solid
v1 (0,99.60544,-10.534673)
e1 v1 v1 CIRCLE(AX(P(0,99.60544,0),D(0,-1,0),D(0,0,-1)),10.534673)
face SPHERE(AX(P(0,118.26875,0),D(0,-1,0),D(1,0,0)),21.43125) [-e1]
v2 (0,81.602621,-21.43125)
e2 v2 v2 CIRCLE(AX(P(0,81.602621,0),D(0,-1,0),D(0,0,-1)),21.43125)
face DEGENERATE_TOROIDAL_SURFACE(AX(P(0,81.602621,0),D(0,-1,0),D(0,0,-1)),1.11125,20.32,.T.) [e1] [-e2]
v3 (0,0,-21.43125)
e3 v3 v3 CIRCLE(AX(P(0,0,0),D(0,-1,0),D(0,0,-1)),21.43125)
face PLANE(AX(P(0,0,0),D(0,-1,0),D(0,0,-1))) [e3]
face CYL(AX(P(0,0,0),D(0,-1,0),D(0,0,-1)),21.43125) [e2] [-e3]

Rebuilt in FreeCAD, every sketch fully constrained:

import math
import FreeCAD as App
import Part
import Sketcher
from FreeCAD import Vector
Q = App.Units.Quantity

doc = App.newDocument("Part")
params = doc.addObject("Spreadsheet::Sheet", "Params")
for row, (alias, value) in enumerate([
    ("sketch1_radius", "0.8 in"),
    ("sketch1_height", "5.5 in"),
    ("sketch1_radius2", "0.84375 in"),
    ("sketch1_width", "0.84375 in"),
    ("revolution_angle", "360 deg"),
], start=1):
    params.set(f"A{row}", alias)
    params.set(f"B{row}", "=" + value)
    params.setAlias(f"B{row}", alias)

body = doc.addObject("PartDesign::Body", "Body")

# Sketch on XY plane
sketch1 = doc.addObject("Sketcher::SketchObject", "Sketch")
body.addObject(sketch1)
sketch1.AttachmentSupport = (doc.XY_Plane, [""])
sketch1.MapMode = "FlatFace"
sketch1.addGeometry(Part.LineSegment(Vector(0, 0, 0), Vector(21.43125, 0, 0)), False)
sketch1.addGeometry(Part.LineSegment(Vector(21.43125, 0, 0), Vector(21.43125, 81.602621, 0)), False)
sketch1.addGeometry(Part.ArcOfCircle(Part.Circle(Vector(1.11125, 81.602621, 0), Vector(0, 0, 1), 20.32), math.radians(0), math.radians(62.370573)), False)
sketch1.addGeometry(Part.ArcOfCircle(Part.Circle(Vector(0, 118.26875, 0), Vector(0, 0, 1), 21.43125), math.radians(-60.557055), math.radians(90)), False)
sketch1.addGeometry(Part.LineSegment(Vector(0, 139.7, 0), Vector(0, 0, 0)), False)
sketch1.addConstraint(Sketcher.Constraint("Coincident", 0, 2, 1, 1))
sketch1.addConstraint(Sketcher.Constraint("Tangent", 1, 2, 2, 1))
sketch1.addConstraint(Sketcher.Constraint("Coincident", 2, 2, 3, 1))
sketch1.addConstraint(Sketcher.Constraint("Coincident", 3, 2, 4, 1))
sketch1.addConstraint(Sketcher.Constraint("Coincident", 4, 2, 0, 1))
sketch1.addConstraint(Sketcher.Constraint("Horizontal", 0))
sketch1.addConstraint(Sketcher.Constraint("Vertical", 1))
sketch1.addConstraint(Sketcher.Constraint("Vertical", 4))
sketch1.addConstraint(Sketcher.Constraint("Coincident", 4, 2, -1, 1))
sketch1.addConstraint(Sketcher.Constraint("PointOnObject", 3, 3, -2))
sketch1.addConstraint(Sketcher.Constraint("Radius", 2, Q("0.8 in")))
sketch1.addConstraint(Sketcher.Constraint("DistanceY", 4, 2, 4, 1, Q("5.5 in")))
sketch1.addConstraint(Sketcher.Constraint("Radius", 3, Q("0.84375 in")))
sketch1.addConstraint(Sketcher.Constraint("DistanceX", 0, 1, 0, 2, Q("0.84375 in")))
sketch1.addConstraint(Sketcher.Constraint("DistanceY", 1, 1, 1, 2, 81.602621))
sketch1.setExpression("Constraints[10]", "Params.sketch1_radius")
sketch1.setExpression("Constraints[11]", "Params.sketch1_height")
sketch1.setExpression("Constraints[12]", "Params.sketch1_radius2")
sketch1.setExpression("Constraints[13]", "Params.sketch1_width")
revolution = doc.addObject("PartDesign::Revolution", "Revolution")
body.addObject(revolution)
revolution.Profile = sketch1
revolution.ReferenceAxis = (sketch1, ["V_Axis"])
revolution.setExpression("Angle", "Params.revolution_angle")

doc.recompute()
